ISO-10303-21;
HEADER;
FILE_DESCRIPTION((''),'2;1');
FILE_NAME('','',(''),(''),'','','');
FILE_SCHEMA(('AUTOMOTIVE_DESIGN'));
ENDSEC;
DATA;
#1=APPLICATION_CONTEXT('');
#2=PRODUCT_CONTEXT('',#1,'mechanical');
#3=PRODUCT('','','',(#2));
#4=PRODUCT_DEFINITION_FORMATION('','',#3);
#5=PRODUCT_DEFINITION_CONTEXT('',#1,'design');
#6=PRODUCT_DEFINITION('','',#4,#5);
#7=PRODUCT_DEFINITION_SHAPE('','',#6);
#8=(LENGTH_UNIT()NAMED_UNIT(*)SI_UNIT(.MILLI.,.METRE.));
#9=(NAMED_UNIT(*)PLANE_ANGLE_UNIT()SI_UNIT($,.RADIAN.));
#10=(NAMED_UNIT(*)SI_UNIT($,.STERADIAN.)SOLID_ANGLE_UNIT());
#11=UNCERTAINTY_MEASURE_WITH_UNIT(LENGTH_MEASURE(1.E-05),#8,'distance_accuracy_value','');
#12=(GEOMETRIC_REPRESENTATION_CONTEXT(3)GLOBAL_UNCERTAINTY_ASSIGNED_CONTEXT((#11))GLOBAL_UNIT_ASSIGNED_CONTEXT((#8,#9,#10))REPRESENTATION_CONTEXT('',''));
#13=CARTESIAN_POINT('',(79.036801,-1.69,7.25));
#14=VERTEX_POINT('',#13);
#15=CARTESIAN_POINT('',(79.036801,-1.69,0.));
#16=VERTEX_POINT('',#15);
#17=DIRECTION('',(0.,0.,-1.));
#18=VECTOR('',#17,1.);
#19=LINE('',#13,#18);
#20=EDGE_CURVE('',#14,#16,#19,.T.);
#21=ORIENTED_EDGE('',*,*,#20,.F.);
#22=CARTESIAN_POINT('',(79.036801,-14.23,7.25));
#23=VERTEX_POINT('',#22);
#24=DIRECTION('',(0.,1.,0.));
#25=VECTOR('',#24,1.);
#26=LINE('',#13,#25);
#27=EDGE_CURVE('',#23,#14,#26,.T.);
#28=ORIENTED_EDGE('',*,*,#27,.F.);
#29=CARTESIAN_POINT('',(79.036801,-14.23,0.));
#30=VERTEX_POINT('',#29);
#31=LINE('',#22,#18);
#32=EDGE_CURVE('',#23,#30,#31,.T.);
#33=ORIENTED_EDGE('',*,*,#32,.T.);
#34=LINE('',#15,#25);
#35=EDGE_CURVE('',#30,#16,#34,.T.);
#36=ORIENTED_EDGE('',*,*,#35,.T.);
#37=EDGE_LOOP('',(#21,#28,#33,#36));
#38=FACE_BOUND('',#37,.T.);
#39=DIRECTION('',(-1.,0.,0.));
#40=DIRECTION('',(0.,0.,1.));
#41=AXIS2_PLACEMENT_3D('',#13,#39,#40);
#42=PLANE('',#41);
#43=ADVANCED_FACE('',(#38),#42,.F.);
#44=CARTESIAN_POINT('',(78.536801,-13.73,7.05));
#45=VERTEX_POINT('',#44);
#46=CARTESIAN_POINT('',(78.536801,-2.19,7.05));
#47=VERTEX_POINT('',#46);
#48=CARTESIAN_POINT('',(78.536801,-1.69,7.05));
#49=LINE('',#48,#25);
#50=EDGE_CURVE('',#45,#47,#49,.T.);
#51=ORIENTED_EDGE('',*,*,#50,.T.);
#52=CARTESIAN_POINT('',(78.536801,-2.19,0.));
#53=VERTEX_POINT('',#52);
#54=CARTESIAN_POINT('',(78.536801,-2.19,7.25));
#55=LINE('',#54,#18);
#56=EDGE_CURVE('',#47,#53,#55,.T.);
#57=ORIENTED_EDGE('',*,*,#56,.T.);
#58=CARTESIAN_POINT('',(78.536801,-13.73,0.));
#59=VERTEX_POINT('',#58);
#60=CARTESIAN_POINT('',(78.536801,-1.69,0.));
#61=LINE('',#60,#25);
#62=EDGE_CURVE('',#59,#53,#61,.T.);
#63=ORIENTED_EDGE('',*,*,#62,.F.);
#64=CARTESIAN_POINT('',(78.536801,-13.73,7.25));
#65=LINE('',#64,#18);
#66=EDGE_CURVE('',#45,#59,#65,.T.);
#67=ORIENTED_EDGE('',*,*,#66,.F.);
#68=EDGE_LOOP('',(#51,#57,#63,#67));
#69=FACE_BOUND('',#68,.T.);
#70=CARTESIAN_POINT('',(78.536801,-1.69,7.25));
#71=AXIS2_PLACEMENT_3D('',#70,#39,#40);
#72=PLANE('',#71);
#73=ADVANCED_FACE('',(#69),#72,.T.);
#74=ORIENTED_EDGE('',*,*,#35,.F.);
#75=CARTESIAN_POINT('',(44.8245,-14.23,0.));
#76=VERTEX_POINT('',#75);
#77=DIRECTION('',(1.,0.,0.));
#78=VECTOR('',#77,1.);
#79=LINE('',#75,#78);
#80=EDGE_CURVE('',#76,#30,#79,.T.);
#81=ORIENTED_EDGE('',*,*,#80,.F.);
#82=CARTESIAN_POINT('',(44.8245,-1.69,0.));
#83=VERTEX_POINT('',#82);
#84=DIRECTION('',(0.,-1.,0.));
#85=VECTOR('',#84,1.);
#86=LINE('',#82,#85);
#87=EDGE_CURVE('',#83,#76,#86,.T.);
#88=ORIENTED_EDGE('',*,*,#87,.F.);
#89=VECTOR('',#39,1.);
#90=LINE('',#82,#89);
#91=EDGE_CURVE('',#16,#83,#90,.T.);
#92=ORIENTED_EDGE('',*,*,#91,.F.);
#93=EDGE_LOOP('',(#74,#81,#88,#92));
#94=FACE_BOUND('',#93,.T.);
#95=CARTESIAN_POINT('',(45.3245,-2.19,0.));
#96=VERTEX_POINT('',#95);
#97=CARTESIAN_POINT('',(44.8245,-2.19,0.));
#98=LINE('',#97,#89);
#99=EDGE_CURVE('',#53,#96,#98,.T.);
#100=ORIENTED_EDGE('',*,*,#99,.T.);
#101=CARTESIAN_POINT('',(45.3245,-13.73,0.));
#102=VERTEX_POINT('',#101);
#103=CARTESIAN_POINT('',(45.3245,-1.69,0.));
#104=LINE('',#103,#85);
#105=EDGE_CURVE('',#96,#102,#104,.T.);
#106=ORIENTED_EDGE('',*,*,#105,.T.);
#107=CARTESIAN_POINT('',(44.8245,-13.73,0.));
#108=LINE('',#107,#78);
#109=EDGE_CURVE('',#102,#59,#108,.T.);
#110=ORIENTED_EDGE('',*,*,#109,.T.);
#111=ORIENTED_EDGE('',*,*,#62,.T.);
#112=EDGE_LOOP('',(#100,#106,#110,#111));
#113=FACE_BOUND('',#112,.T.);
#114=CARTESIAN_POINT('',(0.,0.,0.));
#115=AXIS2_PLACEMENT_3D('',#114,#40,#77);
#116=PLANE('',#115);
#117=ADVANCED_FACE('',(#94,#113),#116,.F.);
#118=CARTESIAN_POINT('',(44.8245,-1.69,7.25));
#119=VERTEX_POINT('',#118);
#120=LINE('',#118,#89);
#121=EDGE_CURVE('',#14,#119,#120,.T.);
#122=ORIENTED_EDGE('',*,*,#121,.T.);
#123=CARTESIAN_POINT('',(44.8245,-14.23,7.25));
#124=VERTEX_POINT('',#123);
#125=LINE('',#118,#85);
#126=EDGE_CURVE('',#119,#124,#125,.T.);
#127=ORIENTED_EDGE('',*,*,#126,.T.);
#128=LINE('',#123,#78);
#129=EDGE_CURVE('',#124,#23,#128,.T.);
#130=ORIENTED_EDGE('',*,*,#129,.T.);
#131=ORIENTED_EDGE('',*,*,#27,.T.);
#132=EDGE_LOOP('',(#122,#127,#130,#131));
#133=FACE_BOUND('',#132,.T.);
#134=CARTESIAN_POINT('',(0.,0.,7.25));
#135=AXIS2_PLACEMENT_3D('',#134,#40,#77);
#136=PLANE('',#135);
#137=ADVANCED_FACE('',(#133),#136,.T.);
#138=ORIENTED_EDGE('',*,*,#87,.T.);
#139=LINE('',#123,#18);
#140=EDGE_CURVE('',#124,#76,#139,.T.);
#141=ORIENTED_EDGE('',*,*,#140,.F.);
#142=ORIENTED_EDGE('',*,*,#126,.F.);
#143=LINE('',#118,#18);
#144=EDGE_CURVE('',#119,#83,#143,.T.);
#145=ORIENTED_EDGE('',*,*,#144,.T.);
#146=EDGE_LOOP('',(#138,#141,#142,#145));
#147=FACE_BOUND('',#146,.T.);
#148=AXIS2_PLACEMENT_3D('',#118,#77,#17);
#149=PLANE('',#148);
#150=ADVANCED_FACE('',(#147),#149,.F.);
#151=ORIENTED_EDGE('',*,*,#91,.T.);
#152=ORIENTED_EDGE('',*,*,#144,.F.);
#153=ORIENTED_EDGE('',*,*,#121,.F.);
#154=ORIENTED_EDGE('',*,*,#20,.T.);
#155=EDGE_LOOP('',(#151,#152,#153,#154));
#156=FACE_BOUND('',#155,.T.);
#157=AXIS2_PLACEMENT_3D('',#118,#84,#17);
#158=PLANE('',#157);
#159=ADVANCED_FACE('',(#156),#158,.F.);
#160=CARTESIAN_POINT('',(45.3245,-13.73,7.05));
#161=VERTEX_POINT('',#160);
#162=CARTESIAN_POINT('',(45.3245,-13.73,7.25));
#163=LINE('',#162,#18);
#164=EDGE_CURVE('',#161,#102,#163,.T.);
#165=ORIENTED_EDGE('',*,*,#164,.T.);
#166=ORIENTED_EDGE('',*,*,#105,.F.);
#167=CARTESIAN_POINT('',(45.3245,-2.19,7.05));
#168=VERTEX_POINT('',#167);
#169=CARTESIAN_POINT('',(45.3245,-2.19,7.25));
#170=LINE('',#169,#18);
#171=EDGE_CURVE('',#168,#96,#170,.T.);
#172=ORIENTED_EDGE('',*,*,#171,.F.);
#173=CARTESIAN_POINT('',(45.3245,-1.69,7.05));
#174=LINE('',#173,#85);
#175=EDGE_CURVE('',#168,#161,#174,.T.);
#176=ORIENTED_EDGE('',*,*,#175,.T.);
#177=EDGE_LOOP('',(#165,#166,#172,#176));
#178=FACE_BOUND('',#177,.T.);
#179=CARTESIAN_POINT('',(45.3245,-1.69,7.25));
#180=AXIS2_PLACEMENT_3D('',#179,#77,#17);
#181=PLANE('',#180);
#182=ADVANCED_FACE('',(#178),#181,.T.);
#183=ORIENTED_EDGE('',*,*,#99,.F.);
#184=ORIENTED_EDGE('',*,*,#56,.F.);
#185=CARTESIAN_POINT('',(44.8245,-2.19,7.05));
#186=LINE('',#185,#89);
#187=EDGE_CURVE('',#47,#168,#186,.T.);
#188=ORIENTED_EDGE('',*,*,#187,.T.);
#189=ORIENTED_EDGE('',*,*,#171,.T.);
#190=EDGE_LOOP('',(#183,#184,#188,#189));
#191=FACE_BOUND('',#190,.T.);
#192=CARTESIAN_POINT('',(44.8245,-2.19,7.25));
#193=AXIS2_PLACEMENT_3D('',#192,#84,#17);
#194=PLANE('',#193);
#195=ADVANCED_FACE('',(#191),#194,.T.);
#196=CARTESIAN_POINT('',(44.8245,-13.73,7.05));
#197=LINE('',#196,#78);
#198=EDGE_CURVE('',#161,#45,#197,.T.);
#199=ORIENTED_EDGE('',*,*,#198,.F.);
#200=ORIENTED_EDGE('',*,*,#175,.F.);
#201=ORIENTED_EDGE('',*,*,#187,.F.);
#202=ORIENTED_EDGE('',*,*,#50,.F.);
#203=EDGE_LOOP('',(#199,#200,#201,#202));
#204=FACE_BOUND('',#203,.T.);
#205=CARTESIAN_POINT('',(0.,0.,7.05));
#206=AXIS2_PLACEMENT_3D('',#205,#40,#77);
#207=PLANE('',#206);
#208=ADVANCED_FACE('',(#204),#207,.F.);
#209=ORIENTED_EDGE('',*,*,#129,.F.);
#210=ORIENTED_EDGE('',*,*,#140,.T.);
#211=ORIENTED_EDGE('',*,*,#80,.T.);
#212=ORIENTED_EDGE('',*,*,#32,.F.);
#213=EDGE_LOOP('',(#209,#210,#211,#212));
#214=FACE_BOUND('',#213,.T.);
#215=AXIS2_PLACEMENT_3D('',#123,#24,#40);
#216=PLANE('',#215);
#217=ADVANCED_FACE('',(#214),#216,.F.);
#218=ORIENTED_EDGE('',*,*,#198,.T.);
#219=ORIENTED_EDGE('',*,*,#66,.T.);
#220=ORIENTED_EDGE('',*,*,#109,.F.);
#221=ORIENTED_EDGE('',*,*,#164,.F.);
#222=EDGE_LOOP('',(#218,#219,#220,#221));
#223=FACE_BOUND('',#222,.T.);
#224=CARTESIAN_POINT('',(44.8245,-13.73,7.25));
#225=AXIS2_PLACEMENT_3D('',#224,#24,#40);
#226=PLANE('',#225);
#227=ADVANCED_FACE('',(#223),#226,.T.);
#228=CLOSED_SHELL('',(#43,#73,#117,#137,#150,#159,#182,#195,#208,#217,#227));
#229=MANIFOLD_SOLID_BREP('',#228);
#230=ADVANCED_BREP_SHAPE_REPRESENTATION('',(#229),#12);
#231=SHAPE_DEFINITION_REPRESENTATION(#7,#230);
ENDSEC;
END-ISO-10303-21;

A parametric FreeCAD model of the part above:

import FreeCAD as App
import Part
import Sketcher


def faces_at(feature, points):
    """Names of the faces that lie closest to the given points."""
    faces = feature.Shape.Faces
    near = lambda p: min(range(len(faces)), key=lambda i: faces[i].distToShape(Part.Vertex(*p))[0])
    return sorted({f"Face{near(p) + 1}" for p in points})


def add_polygon(sketch, points):
    """Adds a closed chain of lines whose ends are joined by coincident constraints."""
    first, n = sketch.GeometryCount, len(points)
    for a, b in zip(points, points[1:] + points[:1]):
        sketch.addGeometry(Part.LineSegment(App.Vector(*a, 0), App.Vector(*b, 0)), False)
    for i in range(n):
        sketch.addConstraint(Sketcher.Constraint("Coincident", first + i, 2, first + (i + 1) % n, 1))

doc = App.newDocument("Part")
body = doc.addObject("PartDesign::Body", "Body")

# Sketch on XY plane
sketch1 = body.newObject("Sketcher::SketchObject", "Sketch")
sketch1.AttachmentSupport = (doc.getObject("XY_Plane"), [""])
sketch1.MapMode = "FlatFace"
add_polygon(sketch1, [(45, -2), (45, -14), (79, -14), (79, -2)])  # lines 0-3
sketch1.addConstraint([
    Sketcher.Constraint("Vertical", 0),
    Sketcher.Constraint("Horizontal", 1),
    Sketcher.Constraint("Vertical", 2),
    Sketcher.Constraint("Horizontal", 3),
    Sketcher.Constraint("DistanceY", 0, 2, 0, 1, 12.54),
    Sketcher.Constraint("DistanceY", 0, 2, -1, 1, 14.23),
    Sketcher.Constraint("DistanceX", 1, 1, 1, 2, 34.212301),
    Sketcher.Constraint("DistanceX", -1, 1, 0, 2, 44.8245),
])
pad1 = body.newObject("PartDesign::Pad", "Pad")
pad1.Profile = sketch1
pad1.Length = 7.25
doc.recompute()

thickness = body.newObject("PartDesign::Thickness", "Thickness")
thickness.Base = (pad1, faces_at(pad1, [(61.931, -7.96, 0)]))
thickness.Value = 0.5
thickness.Reversed = True
thickness.Join = "Intersection"

# Sketch on XY plane
sketch2 = body.newObject("Sketcher::SketchObject", "Sketch001")
sketch2.AttachmentSupport = (doc.getObject("XY_Plane"), [""])
sketch2.MapMode = "FlatFace"
sketch2.AttachmentOffset = App.Placement(App.Vector(0, 0, 6.75), App.Rotation())
add_polygon(sketch2, [(45, -2), (45, -14), (79, -14), (79, -2)])  # lines 0-3
sketch2.addConstraint([
    Sketcher.Constraint("Vertical", 0),
    Sketcher.Constraint("Horizontal", 1),
    Sketcher.Constraint("Vertical", 2),
    Sketcher.Constraint("Horizontal", 3),
    Sketcher.Constraint("DistanceY", 0, 2, 0, 1, 11.54),
    Sketcher.Constraint("DistanceY", 0, 2, -1, 1, 13.73),
    Sketcher.Constraint("DistanceX", 1, 1, 1, 2, 33.212301),
    Sketcher.Constraint("DistanceX", -1, 1, 0, 2, 45.3245),
])
pocket1 = body.newObject("PartDesign::Pocket", "Pocket")
pocket1.Profile = sketch2
pocket1.Length = 0.3
pocket1.Reversed = True

doc.recompute()
